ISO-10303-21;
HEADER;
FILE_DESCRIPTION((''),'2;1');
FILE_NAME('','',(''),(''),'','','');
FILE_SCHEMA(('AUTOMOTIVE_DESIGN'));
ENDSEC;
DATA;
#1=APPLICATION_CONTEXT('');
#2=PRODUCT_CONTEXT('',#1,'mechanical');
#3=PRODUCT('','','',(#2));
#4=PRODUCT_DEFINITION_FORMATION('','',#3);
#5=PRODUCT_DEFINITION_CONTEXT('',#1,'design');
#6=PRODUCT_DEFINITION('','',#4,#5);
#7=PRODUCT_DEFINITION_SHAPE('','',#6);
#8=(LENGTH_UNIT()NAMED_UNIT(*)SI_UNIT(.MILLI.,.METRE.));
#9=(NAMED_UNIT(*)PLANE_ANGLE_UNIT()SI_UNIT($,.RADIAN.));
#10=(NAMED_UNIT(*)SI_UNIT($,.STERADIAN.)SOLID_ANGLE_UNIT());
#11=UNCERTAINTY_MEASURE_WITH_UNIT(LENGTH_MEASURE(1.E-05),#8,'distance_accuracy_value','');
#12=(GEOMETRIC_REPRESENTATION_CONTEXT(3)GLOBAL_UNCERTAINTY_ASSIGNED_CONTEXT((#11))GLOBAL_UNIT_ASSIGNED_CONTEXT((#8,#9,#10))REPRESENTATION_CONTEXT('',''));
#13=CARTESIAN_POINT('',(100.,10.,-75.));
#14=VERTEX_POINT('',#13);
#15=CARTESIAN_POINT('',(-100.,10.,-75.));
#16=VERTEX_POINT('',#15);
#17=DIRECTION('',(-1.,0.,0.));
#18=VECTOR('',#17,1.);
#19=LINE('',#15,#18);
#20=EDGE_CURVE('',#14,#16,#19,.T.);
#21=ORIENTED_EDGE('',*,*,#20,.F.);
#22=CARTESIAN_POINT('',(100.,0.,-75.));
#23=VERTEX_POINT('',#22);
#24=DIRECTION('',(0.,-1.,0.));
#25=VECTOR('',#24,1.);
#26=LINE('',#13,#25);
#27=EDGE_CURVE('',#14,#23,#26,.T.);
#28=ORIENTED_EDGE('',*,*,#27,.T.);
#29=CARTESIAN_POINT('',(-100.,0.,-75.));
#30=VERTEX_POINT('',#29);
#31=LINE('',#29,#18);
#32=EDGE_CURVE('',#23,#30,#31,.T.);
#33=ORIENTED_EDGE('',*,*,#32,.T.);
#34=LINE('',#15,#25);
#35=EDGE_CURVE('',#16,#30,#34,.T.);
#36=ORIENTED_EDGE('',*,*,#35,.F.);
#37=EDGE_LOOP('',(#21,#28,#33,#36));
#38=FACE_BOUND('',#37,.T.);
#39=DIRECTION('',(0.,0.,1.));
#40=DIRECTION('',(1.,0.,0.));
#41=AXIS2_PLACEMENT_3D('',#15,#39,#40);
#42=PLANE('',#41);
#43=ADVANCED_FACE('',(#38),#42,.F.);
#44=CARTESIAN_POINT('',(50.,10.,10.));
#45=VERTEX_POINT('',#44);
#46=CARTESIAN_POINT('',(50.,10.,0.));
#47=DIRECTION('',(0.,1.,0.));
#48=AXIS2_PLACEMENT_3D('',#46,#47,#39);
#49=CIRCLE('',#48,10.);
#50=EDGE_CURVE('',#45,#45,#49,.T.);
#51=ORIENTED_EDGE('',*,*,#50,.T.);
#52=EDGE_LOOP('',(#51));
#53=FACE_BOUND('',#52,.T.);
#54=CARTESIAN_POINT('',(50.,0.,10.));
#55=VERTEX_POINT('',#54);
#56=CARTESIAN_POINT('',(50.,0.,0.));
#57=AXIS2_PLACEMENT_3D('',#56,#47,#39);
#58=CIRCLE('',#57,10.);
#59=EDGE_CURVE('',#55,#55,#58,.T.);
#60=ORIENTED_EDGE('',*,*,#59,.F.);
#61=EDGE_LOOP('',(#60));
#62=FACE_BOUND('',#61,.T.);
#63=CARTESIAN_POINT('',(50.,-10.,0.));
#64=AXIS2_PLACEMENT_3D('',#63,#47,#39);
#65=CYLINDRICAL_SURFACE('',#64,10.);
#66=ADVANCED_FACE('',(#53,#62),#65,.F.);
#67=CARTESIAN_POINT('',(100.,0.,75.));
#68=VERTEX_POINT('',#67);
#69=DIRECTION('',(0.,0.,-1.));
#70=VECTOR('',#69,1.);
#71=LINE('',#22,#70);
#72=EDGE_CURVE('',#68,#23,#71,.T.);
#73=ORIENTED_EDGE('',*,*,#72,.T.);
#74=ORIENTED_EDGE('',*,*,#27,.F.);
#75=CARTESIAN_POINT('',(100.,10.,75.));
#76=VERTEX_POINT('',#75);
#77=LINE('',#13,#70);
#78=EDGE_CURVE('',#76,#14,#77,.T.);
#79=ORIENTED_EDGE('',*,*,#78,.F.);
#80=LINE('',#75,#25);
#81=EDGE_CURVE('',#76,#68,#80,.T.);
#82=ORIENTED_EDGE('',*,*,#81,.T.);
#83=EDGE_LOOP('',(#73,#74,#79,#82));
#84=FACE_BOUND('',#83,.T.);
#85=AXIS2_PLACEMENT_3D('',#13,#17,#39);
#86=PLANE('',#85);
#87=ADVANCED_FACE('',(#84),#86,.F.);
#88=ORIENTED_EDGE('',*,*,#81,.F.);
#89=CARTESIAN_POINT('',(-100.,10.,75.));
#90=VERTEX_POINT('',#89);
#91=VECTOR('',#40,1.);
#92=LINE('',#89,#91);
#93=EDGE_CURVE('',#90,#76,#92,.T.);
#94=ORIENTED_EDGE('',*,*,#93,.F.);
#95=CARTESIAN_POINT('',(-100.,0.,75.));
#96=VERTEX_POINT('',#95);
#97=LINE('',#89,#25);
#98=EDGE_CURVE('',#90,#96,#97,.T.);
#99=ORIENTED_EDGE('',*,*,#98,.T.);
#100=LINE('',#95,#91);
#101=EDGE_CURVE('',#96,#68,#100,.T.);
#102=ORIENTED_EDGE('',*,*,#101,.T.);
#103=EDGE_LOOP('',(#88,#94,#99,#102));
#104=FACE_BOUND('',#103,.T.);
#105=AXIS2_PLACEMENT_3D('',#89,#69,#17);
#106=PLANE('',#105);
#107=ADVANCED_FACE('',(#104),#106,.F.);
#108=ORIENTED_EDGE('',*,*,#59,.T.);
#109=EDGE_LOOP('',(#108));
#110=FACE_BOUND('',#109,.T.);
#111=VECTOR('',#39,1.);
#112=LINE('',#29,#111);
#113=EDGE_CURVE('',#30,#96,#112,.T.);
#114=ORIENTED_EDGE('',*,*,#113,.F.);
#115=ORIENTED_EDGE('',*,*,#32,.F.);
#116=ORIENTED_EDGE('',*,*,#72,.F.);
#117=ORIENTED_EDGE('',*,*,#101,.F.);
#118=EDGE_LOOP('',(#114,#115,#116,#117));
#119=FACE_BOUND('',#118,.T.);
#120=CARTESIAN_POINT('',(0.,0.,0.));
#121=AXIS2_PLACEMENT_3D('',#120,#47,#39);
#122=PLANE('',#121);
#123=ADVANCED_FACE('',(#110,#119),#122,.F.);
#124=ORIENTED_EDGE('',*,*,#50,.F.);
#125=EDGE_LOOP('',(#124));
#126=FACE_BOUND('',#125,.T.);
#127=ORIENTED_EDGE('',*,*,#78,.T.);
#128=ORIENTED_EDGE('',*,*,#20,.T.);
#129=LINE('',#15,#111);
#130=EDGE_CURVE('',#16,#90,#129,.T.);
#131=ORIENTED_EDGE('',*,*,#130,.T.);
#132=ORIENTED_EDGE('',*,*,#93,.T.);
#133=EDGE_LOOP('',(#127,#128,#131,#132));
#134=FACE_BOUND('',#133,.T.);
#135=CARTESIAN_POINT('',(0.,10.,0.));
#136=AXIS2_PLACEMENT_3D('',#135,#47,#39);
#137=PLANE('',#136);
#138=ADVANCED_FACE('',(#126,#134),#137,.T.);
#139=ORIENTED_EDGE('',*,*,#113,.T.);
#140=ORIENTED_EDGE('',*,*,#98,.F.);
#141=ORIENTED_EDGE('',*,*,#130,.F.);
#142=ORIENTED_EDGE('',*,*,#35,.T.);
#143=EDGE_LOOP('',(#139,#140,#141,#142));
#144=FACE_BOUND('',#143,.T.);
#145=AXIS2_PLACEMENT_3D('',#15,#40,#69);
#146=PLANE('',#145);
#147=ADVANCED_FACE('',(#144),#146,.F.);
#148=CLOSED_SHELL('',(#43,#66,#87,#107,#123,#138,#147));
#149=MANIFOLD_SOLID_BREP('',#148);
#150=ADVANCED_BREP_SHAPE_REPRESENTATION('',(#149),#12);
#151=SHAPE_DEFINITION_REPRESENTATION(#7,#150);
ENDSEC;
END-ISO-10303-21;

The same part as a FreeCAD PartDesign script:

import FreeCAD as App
import Part
import Sketcher
from FreeCAD import Vector
Q = App.Units.Quantity

doc = App.newDocument("Part")
params = doc.addObject("Spreadsheet::Sheet", "Params")
for row, (alias, value) in enumerate([
    ("sketch1_width", "200 mm"),
    ("sketch1_height", "150 mm"),
    ("pad1_length", "10 mm"),
    ("sketch2_diameter", "20 mm"),
    ("pocket1_length", "20 mm"),
], start=1):
    params.set(f"A{row}", alias)
    params.set(f"B{row}", "=" + value)
    params.setAlias(f"B{row}", alias)

body = doc.addObject("PartDesign::Body", "Body")

# Sketch on XZ plane
sketch1 = doc.addObject("Sketcher::SketchObject", "Sketch")
body.addObject(sketch1)
sketch1.AttachmentSupport = (doc.XZ_Plane, [""])
sketch1.MapMode = "FlatFace"
sketch1.addGeometry(Part.LineSegment(Vector(-100, -75, 0), Vector(-100, 75, 0)), False)
sketch1.addGeometry(Part.LineSegment(Vector(-100, 75, 0), Vector(100, 75, 0)), False)
sketch1.addGeometry(Part.LineSegment(Vector(100, 75, 0), Vector(100, -75, 0)), False)
sketch1.addGeometry(Part.LineSegment(Vector(100, -75, 0), Vector(-100, -75, 0)), False)
sketch1.addConstraint(Sketcher.Constraint("Coincident", 0, 2, 1, 1))
sketch1.addConstraint(Sketcher.Constraint("Coincident", 1, 2, 2, 1))
sketch1.addConstraint(Sketcher.Constraint("Coincident", 2, 2, 3, 1))
sketch1.addConstraint(Sketcher.Constraint("Coincident", 3, 2, 0, 1))
sketch1.addConstraint(Sketcher.Constraint("Vertical", 0))
sketch1.addConstraint(Sketcher.Constraint("Horizontal", 1))
sketch1.addConstraint(Sketcher.Constraint("Vertical", 2))
sketch1.addConstraint(Sketcher.Constraint("Horizontal", 3))
sketch1.addConstraint(Sketcher.Constraint("Symmetric", 0, 2, 2, 2, -1, 1))
sketch1.addConstraint(Sketcher.Constraint("DistanceX", 1, 1, 1, 2, Q("200 mm")))
sketch1.addConstraint(Sketcher.Constraint("DistanceY", 0, 1, 0, 2, Q("150 mm")))
sketch1.setExpression("Constraints[9]", "Params.sketch1_width")
sketch1.setExpression("Constraints[10]", "Params.sketch1_height")
pad1 = doc.addObject("PartDesign::Pad", "Pad")
body.addObject(pad1)
pad1.Profile = sketch1
pad1.setExpression("Length", "Params.pad1_length")
pad1.Reversed = True

# Sketch on XZ plane
sketch2 = doc.addObject("Sketcher::SketchObject", "Sketch001")
body.addObject(sketch2)
sketch2.AttachmentSupport = (doc.XZ_Plane, [""])
sketch2.MapMode = "FlatFace"
sketch2.AttachmentOffset = App.Placement(Vector(0, 0, -10), App.Rotation())
sketch2.addGeometry(Part.Circle(Vector(50, 0, 0), Vector(0, 0, 1), 10), False)
sketch2.addConstraint(Sketcher.Constraint("PointOnObject", 0, 3, -1))
sketch2.addConstraint(Sketcher.Constraint("Diameter", 0, Q("20 mm")))
sketch2.addConstraint(Sketcher.Constraint("DistanceX", -1, 1, 0, 3, Q("50 mm")))
sketch2.setExpression("Constraints[1]", "Params.sketch2_diameter")
pocket1 = doc.addObject("PartDesign::Pocket", "Pocket")
body.addObject(pocket1)
pocket1.Profile = sketch2
pocket1.setExpression("Length", "Params.pocket1_length")
pocket1.Reversed = True

doc.recompute()
